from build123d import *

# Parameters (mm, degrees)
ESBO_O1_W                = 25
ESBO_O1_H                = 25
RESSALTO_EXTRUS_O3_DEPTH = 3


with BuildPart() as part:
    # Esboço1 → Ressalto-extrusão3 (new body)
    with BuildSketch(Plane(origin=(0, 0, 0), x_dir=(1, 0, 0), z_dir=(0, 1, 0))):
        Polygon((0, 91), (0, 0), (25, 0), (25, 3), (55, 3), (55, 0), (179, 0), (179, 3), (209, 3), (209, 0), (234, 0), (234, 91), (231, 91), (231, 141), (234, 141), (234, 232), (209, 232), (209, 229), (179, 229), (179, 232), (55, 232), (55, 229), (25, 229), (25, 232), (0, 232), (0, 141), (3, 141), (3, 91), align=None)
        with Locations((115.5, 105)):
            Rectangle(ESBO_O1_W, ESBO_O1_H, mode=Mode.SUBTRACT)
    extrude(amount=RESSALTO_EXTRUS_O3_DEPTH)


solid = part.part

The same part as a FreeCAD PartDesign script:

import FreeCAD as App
import Part
import Sketcher
from FreeCAD import Vector


def add_polygon(sketch, points):
    """Adds a closed chain of lines whose ends are joined by coincident constraints."""
    first, n = sketch.GeometryCount, len(points)
    for a, b in zip(points, points[1:] + points[:1]):
        sketch.addGeometry(Part.LineSegment(App.Vector(*a, 0), App.Vector(*b, 0)), False)
    for i in range(n):
        sketch.addConstraint(Sketcher.Constraint("Coincident", first + i, 2, first + (i + 1) % n, 1))

doc = App.newDocument("Part")
params = doc.addObject("Spreadsheet::Sheet", "Params")
for row, (alias, value) in enumerate([
    ("sketch1_width", "25 mm"),
    ("sketch1_width2", "30 mm"),
    ("sketch1_width3", "124 mm"),
    ("sketch1_width4", "3 mm"),
    ("sketch1_height", "91 mm"),
    ("pad1_length", "3 mm"),
], start=1):
    params.set(f"A{row}", alias)
    params.set(f"B{row}", "=" + value)
    params.setAlias(f"B{row}", alias)

body = doc.addObject("PartDesign::Body", "Body")

# Sketch on XZ plane
sketch1 = doc.addObject("Sketcher::SketchObject", "Sketch")
body.addObject(sketch1)
sketch1.AttachmentSupport = (doc.XZ_Plane, [""])
sketch1.MapMode = "FlatFace"
add_polygon(sketch1, [(0, -91), (0, 0), (25, 0), (25, -3), (55, -3), (55, 0), (179, 0), (179, -3), (209, -3), (209, 0), (234, 0), (234, -91), (231, -91), (231, -141), (234, -141), (234, -232), (209, -232), (209, -229), (179, -229), (179, -232), (55, -232), (55, -229), (25, -229), (25, -232), (0, -232), (0, -141), (3, -141), (3, -91)])  # lines 0-27
add_polygon(sketch1, [(128, -92.5), (103, -92.5), (103, -117.5), (128, -117.5)])  # lines 28-31
sketch1.addConstraint(Sketcher.Constraint("Vertical", 0))
sketch1.addConstraint(Sketcher.Constraint("Horizontal", 1))
sketch1.addConstraint(Sketcher.Constraint("Vertical", 2))
sketch1.addConstraint(Sketcher.Constraint("Horizontal", 3))
sketch1.addConstraint(Sketcher.Constraint("Vertical", 4))
sketch1.addConstraint(Sketcher.Constraint("Horizontal", 5))
sketch1.addConstraint(Sketcher.Constraint("Vertical", 6))
sketch1.addConstraint(Sketcher.Constraint("Horizontal", 7))
sketch1.addConstraint(Sketcher.Constraint("Vertical", 8))
sketch1.addConstraint(Sketcher.Constraint("Horizontal", 9))
sketch1.addConstraint(Sketcher.Constraint("Vertical", 10))
sketch1.addConstraint(Sketcher.Constraint("Horizontal", 11))
sketch1.addConstraint(Sketcher.Constraint("Vertical", 12))
sketch1.addConstraint(Sketcher.Constraint("Horizontal", 13))
sketch1.addConstraint(Sketcher.Constraint("Vertical", 14))
sketch1.addConstraint(Sketcher.Constraint("Horizontal", 15))
sketch1.addConstraint(Sketcher.Constraint("Vertical", 16))
sketch1.addConstraint(Sketcher.Constraint("Horizontal", 17))
sketch1.addConstraint(Sketcher.Constraint("Vertical", 18))
sketch1.addConstraint(Sketcher.Constraint("Horizontal", 19))
sketch1.addConstraint(Sketcher.Constraint("Vertical", 20))
sketch1.addConstraint(Sketcher.Constraint("Horizontal", 21))
sketch1.addConstraint(Sketcher.Constraint("Vertical", 22))
sketch1.addConstraint(Sketcher.Constraint("Horizontal", 23))
sketch1.addConstraint(Sketcher.Constraint("Vertical", 24))
sketch1.addConstraint(Sketcher.Constraint("Horizontal", 25))
sketch1.addConstraint(Sketcher.Constraint("Vertical", 26))
sketch1.addConstraint(Sketcher.Constraint("Horizontal", 27))
sketch1.addConstraint(Sketcher.Constraint("Horizontal", 28))
sketch1.addConstraint(Sketcher.Constraint("Vertical", 29))
sketch1.addConstraint(Sketcher.Constraint("Horizontal", 30))
sketch1.addConstraint(Sketcher.Constraint("Vertical", 31))
sketch1.addConstraint(Sketcher.Constraint("Coincident", 0, 2, -1, 1))
sketch1.addConstraint(Sketcher.Constraint("PointOnObject", 4, 2, -1))
sketch1.addConstraint(Sketcher.Constraint("PointOnObject", 8, 2, -1))
sketch1.addConstraint(Sketcher.Constraint("PointOnObject", 23, 2, -2))
sketch1.addConstraint(Sketcher.Constraint("Horizontal", 3, 2, 6, 2))
sketch1.addConstraint(Sketcher.Constraint("Horizontal", 15, 2, 18, 2))
sketch1.addConstraint(Sketcher.Constraint("Horizontal", 17, 2, 20, 2))
sketch1.addConstraint(Sketcher.Constraint("Horizontal", 19, 2, 22, 2))
sketch1.addConstraint(Sketcher.Constraint("Horizontal", 13, 2, 24, 2))
sketch1.addConstraint(Sketcher.Constraint("Horizontal", 11, 2, 26, 2))
sketch1.addConstraint(Sketcher.Constraint("Vertical", 10, 2, 13, 2))
sketch1.addConstraint(Sketcher.Constraint("Vertical", 8, 2, 15, 2))
sketch1.addConstraint(Sketcher.Constraint("Vertical", 6, 2, 17, 2))
sketch1.addConstraint(Sketcher.Constraint("Vertical", 4, 2, 19, 2))
sketch1.addConstraint(Sketcher.Constraint("Vertical", 2, 2, 21, 2))
sketch1.addConstraint(Sketcher.Constraint("Equal", 3, 7))
sketch1.addConstraint(Sketcher.Constraint("Equal", 1, 9))
sketch1.addConstraint(Sketcher.Constraint("Equal", 13, 25))
sketch1.addConstraint(Sketcher.Constraint("Equal", 23, 28))
sketch1.addConstraint(Sketcher.Constraint("Equal", 27, 2))
sketch1.addConstraint(Sketcher.Constraint("Equal", 10, 14))
sketch1.addConstraint(Sketcher.Constraint("Equal", 8, 16))
sketch1.addConstraint(Sketcher.Constraint("Equal", 30, 29))
sketch1.addConstraint(Sketcher.Constraint("DistanceX", 1, 1, 1, 2, 25.0))
sketch1.addConstraint(Sketcher.Constraint("DistanceX", 3, 1, 3, 2, 30.0))
sketch1.addConstraint(Sketcher.Constraint("DistanceX", 5, 1, 5, 2, 124.0))
sketch1.addConstraint(Sketcher.Constraint("DistanceX", 11, 2, 11, 1, 3.0))
sketch1.addConstraint(Sketcher.Constraint("DistanceY", 0, 1, 0, 2, 91.0))
sketch1.addConstraint(Sketcher.Constraint("DistanceY", 12, 2, 12, 1, 50.0))
sketch1.addConstraint(Sketcher.Constraint("DistanceX", -1, 1, 28, 2, 103.0))
sketch1.addConstraint(Sketcher.Constraint("DistanceY", 28, 2, -1, 1, 92.5))
sketch1.setExpression("Constraints[87]", "Params.sketch1_width")
sketch1.setExpression("Constraints[88]", "Params.sketch1_width2")
sketch1.setExpression("Constraints[89]", "Params.sketch1_width3")
sketch1.setExpression("Constraints[90]", "Params.sketch1_width4")
sketch1.setExpression("Constraints[91]", "Params.sketch1_height")
pad1 = doc.addObject("PartDesign::Pad", "Pad")
body.addObject(pad1)
pad1.Profile = sketch1
pad1.setExpression("Length", "Params.pad1_length")
pad1.Reversed = True

doc.recompute()
